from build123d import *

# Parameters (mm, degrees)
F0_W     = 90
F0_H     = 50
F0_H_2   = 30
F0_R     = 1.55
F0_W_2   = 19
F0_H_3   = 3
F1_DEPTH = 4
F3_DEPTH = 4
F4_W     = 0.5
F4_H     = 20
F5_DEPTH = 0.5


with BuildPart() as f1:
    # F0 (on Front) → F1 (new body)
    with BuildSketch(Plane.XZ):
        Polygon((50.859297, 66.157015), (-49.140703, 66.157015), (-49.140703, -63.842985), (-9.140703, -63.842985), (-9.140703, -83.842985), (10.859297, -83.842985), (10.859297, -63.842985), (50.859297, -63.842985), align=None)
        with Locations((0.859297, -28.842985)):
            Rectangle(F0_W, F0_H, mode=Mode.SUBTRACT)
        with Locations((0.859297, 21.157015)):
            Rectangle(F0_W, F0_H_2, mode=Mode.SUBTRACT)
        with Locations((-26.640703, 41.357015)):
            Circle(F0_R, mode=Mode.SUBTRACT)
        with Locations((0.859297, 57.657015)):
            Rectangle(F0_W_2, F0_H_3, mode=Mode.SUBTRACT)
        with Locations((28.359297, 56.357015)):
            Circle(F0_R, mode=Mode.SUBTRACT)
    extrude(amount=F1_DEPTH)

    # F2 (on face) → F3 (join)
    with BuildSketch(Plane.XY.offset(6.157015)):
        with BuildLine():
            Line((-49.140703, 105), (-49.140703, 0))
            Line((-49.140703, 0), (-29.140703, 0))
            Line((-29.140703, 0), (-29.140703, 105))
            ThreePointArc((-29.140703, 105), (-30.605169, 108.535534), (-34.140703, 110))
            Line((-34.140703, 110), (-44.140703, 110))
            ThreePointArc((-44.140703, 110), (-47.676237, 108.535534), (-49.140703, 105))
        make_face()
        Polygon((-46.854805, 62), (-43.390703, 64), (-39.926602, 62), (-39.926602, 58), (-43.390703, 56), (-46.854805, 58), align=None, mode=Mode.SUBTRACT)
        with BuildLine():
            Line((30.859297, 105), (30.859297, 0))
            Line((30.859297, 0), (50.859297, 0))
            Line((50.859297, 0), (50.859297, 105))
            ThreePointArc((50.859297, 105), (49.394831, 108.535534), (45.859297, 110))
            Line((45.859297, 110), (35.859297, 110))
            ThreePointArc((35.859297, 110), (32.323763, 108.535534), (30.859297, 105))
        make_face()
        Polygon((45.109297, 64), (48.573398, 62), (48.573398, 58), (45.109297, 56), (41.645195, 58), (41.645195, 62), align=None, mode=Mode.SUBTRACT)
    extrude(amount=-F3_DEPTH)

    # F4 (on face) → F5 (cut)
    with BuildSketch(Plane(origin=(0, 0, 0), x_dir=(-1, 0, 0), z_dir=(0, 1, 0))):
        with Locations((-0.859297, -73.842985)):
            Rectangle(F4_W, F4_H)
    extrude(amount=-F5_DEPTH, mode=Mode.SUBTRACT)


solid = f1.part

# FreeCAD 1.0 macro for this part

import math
import FreeCAD as App
import Part
import Sketcher

V = App.Vector
Q = App.Units.Quantity


def add_polygon(sketch, points):
    """Adds a closed chain of lines whose ends are joined by coincident constraints."""
    first, n = sketch.GeometryCount, len(points)
    for a, b in zip(points, points[1:] + points[:1]):
        sketch.addGeometry(Part.LineSegment(App.Vector(*a, 0), App.Vector(*b, 0)), False)
    for i in range(n):
        sketch.addConstraint(Sketcher.Constraint("Coincident", first + i, 2, first + (i + 1) % n, 1))

doc = App.newDocument("Part")
body = doc.addObject("PartDesign::Body", "Body")

sketch1 = body.newObject("Sketcher::SketchObject", "Sketch")
sketch1.AttachmentSupport = (doc.getObject("XZ_Plane"), [""])
sketch1.MapMode = "FlatFace"
add_polygon(sketch1, [(50.9, 66.2), (-49.1, 66.2), (-49.1, -63.8), (-9.1, -63.8), (-9.1, -83.8), (10.9, -83.8), (10.9, -63.8), (50.9, -63.8)])
add_polygon(sketch1, [(45.9, -53.8), (-44.1, -53.8), (-44.1, -3.8), (45.9, -3.8)])
sketch1.addGeometry(Part.Circle(V(-26.6, 41.4, 0), V(0, 0, 1), 1.6), False)
add_polygon(sketch1, [(45.9, 6.2), (-44.1, 6.2), (-44.1, 36.2), (45.9, 36.2)])
add_polygon(sketch1, [(10.4, 56.2), (-8.6, 56.2), (-8.6, 59.2), (10.4, 59.2)])
sketch1.addGeometry(Part.Circle(V(28.4, 56.4, 0), V(0, 0, 1), 1.6), False)
sketch1.addConstraint(Sketcher.Constraint("Horizontal", 0))
sketch1.addConstraint(Sketcher.Constraint("Vertical", 1))
sketch1.addConstraint(Sketcher.Constraint("Horizontal", 2))
sketch1.addConstraint(Sketcher.Constraint("Vertical", 3))
sketch1.addConstraint(Sketcher.Constraint("Horizontal", 4))
sketch1.addConstraint(Sketcher.Constraint("Vertical", 5))
sketch1.addConstraint(Sketcher.Constraint("Horizontal", 6))
sketch1.addConstraint(Sketcher.Constraint("Vertical", 7))
sketch1.addConstraint(Sketcher.Constraint("Horizontal", 8))
sketch1.addConstraint(Sketcher.Constraint("Vertical", 9))
sketch1.addConstraint(Sketcher.Constraint("Horizontal", 10))
sketch1.addConstraint(Sketcher.Constraint("Vertical", 11))
sketch1.addConstraint(Sketcher.Constraint("Horizontal", 13))
sketch1.addConstraint(Sketcher.Constraint("Vertical", 14))
sketch1.addConstraint(Sketcher.Constraint("Horizontal", 15))
sketch1.addConstraint(Sketcher.Constraint("Vertical", 16))
sketch1.addConstraint(Sketcher.Constraint("Horizontal", 17))
sketch1.addConstraint(Sketcher.Constraint("Vertical", 18))
sketch1.addConstraint(Sketcher.Constraint("Horizontal", 19))
sketch1.addConstraint(Sketcher.Constraint("Vertical", 20))
sketch1.addConstraint(Sketcher.Constraint("Equal", 12, 21))
sketch1.addConstraint(Sketcher.Constraint("Horizontal", 2, 2, 5, 2))
sketch1.addConstraint(Sketcher.Constraint("Vertical", 9, 2, 13, 2))
sketch1.addConstraint(Sketcher.Constraint("Vertical", 11, 2, 15, 2))
sketch1.addConstraint(Sketcher.Constraint("Equal", 2, 6))
sketch1.addConstraint(Sketcher.Constraint("Equal", 4, 3))
sketch1.addConstraint(Sketcher.Constraint("Diameter", 12, 3.1))
sketch1.addConstraint(Sketcher.Constraint("DistanceX", 0, 2, 0, 1, 100.0))
sketch1.addConstraint(Sketcher.Constraint("DistanceX", 2, 1, 2, 2, 40.0))
sketch1.addConstraint(Sketcher.Constraint("DistanceX", 8, 2, 8, 1, 90.0))
sketch1.addConstraint(Sketcher.Constraint("DistanceX", 17, 2, 17, 1, 19.0))
sketch1.addConstraint(Sketcher.Constraint("DistanceY", 1, 2, 1, 1, 130.0))
sketch1.addConstraint(Sketcher.Constraint("DistanceY", 9, 1, 9, 2, 50.0))
sketch1.addConstraint(Sketcher.Constraint("DistanceY", 14, 1, 14, 2, 30.0))
sketch1.addConstraint(Sketcher.Constraint("DistanceY", 18, 1, 18, 2, 3.0))
sketch1.addConstraint(Sketcher.Constraint("DistanceX", 12, 3, 21, 3, 55.0))
sketch1.addConstraint(Sketcher.Constraint("DistanceY", 12, 3, 21, 3, 15.0))
sketch1.addConstraint(Sketcher.Constraint("DistanceX", 1, 2, 8, 2, 5.0))
sketch1.addConstraint(Sketcher.Constraint("DistanceY", 1, 2, 8, 2, 10.0))
sketch1.addConstraint(Sketcher.Constraint("DistanceY", 9, 2, 13, 2, 10.0))
sketch1.addConstraint(Sketcher.Constraint("DistanceX", 12, 3, 17, 2, 18.0))
sketch1.addConstraint(Sketcher.Constraint("DistanceY", 14, 2, 17, 2, 20.0))
sketch1.addConstraint(Sketcher.Constraint("DistanceX", 0, 2, 12, 3, 22.5))
sketch1.addConstraint(Sketcher.Constraint("DistanceY", 12, 3, 0, 2, 24.8))
sketch1.addConstraint(Sketcher.Constraint("DistanceX", 12, 3, -1, 1, 26.640703))
sketch1.addConstraint(Sketcher.Constraint("DistanceY", -1, 1, 12, 3, 41.357015))
pad1 = body.newObject("PartDesign::Pad", "Pad")
pad1.Profile = sketch1
pad1.Length = 4

sketch2 = body.newObject("Sketcher::SketchObject", "Sketch001")
sketch2.AttachmentSupport = (doc.getObject("XY_Plane"), [""])
sketch2.MapMode = "FlatFace"
sketch2.AttachmentOffset = App.Placement(V(0, 0, 6.157015), App.Rotation())
sketch2.addGeometry(Part.LineSegment(V(-49.1, 105, 0), V(-49.1, 0, 0)), False)
sketch2.addGeometry(Part.LineSegment(V(-49.1, 0, 0), V(-29.1, 0, 0)), False)
sketch2.addGeometry(Part.LineSegment(V(-29.1, 0, 0), V(-29.1, 105, 0)), False)
sketch2.addGeometry(Part.ArcOfCircle(Part.Circle(V(-34.1, 105, 0), V(0, 0, 1), 5), math.radians(0), math.radians(90)), False)
sketch2.addGeometry(Part.LineSegment(V(-34.1, 110, 0), V(-44.1, 110, 0)), False)
sketch2.addGeometry(Part.ArcOfCircle(Part.Circle(V(-44.1, 105, 0), V(0, 0, 1), 5), math.radians(90), math.radians(180)), False)
add_polygon(sketch2, [(-46.9, 58), (-46.9, 62), (-43.4, 64), (-39.9, 62), (-39.9, 58), (-43.4, 56)])
sketch2.addGeometry(Part.LineSegment(V(30.9, 105, 0), V(30.9, 0, 0)), False)
sketch2.addGeometry(Part.LineSegment(V(30.9, 0, 0), V(50.9, 0, 0)), False)
sketch2.addGeometry(Part.LineSegment(V(50.9, 0, 0), V(50.9, 105, 0)), False)
sketch2.addGeometry(Part.ArcOfCircle(Part.Circle(V(45.9, 105, 0), V(0, 0, 1), 5), math.radians(0), math.radians(90)), False)
sketch2.addGeometry(Part.LineSegment(V(45.9, 110, 0), V(35.9, 110, 0)), False)
sketch2.addGeometry(Part.ArcOfCircle(Part.Circle(V(35.9, 105, 0), V(0, 0, 1), 5), math.radians(90), math.radians(180)), False)
add_polygon(sketch2, [(41.6, 62), (45.1, 64), (48.6, 62), (48.6, 58), (45.1, 56), (41.6, 58)])
sketch2.addConstraint(Sketcher.Constraint("Coincident", 0, 2, 1, 1))
sketch2.addConstraint(Sketcher.Constraint("Coincident", 1, 2, 2, 1))
sketch2.addConstraint(Sketcher.Constraint("Tangent", 2, 2, 3, 1))
sketch2.addConstraint(Sketcher.Constraint("Tangent", 3, 2, 4, 1))
sketch2.addConstraint(Sketcher.Constraint("Tangent", 4, 2, 5, 1))
sketch2.addConstraint(Sketcher.Constraint("Tangent", 5, 2, 0, 1))
sketch2.addConstraint(Sketcher.Constraint("Coincident", 12, 2, 13, 1))
sketch2.addConstraint(Sketcher.Constraint("Coincident", 13, 2, 14, 1))
sketch2.addConstraint(Sketcher.Constraint("Tangent", 14, 2, 15, 1))
sketch2.addConstraint(Sketcher.Constraint("Tangent", 15, 2, 16, 1))
sketch2.addConstraint(Sketcher.Constraint("Tangent", 16, 2, 17, 1))
sketch2.addConstraint(Sketcher.Constraint("Tangent", 17, 2, 12, 1))
sketch2.addConstraint(Sketcher.Constraint("Vertical", 0))
sketch2.addConstraint(Sketcher.Constraint("Horizontal", 1))
sketch2.addConstraint(Sketcher.Constraint("Vertical", 2))
sketch2.addConstraint(Sketcher.Constraint("Horizontal", 4))
sketch2.addConstraint(Sketcher.Constraint("Vertical", 6))
sketch2.addConstraint(Sketcher.Constraint("Vertical", 9))
sketch2.addConstraint(Sketcher.Constraint("Vertical", 12))
sketch2.addConstraint(Sketcher.Constraint("Horizontal", 13))
sketch2.addConstraint(Sketcher.Constraint("Vertical", 14))
sketch2.addConstraint(Sketcher.Constraint("Horizontal", 16))
sketch2.addConstraint(Sketcher.Constraint("Vertical", 20))
sketch2.addConstraint(Sketcher.Constraint("Vertical", 23))
sketch2.addConstraint(Sketcher.Constraint("Equal", 3, 5))
sketch2.addConstraint(Sketcher.Constraint("Equal", 5, 15))
sketch2.addConstraint(Sketcher.Constraint("Equal", 15, 17))
sketch2.addConstraint(Sketcher.Constraint("PointOnObject", 0, 2, -1))
sketch2.addConstraint(Sketcher.Constraint("PointOnObject", 12, 2, -1))
sketch2.addConstraint(Sketcher.Constraint("Parallel", 7, 10))
sketch2.addConstraint(Sketcher.Constraint("Parallel", 8, 11))
sketch2.addConstraint(Sketcher.Constraint("Parallel", 10, 18))
sketch2.addConstraint(Sketcher.Constraint("Parallel", 11, 19))
sketch2.addConstraint(Sketcher.Constraint("Parallel", 18, 21))
sketch2.addConstraint(Sketcher.Constraint("Parallel", 19, 22))
sketch2.addConstraint(Sketcher.Constraint("Horizontal", 5, 3, 15, 3))
sketch2.addConstraint(Sketcher.Constraint("Horizontal", 6, 2, 8, 2))
sketch2.addConstraint(Sketcher.Constraint("Horizontal", 9, 2, 11, 2))
sketch2.addConstraint(Sketcher.Constraint("Horizontal", 7, 2, 18, 2))
sketch2.addConstraint(Sketcher.Constraint("Horizontal", 8, 2, 19, 2))
sketch2.addConstraint(Sketcher.Constraint("Horizontal", 11, 2, 20, 2))
sketch2.addConstraint(Sketcher.Constraint("Horizontal", 10, 2, 21, 2))
sketch2.addConstraint(Sketcher.Constraint("Horizontal", 20, 2, 22, 2))
sketch2.addConstraint(Sketcher.Constraint("Vertical", 7, 2, 10, 2))
sketch2.addConstraint(Sketcher.Constraint("Equal", 1, 13))
sketch2.addConstraint(Sketcher.Constraint("Radius", 3, 5.0))
sketch2.addConstraint(Sketcher.Constraint("DistanceX", 1, 1, 1, 2, 20.0))
sketch2.addConstraint(Sketcher.Constraint("DistanceY", 0, 2, 0, 1, 105.0))
sketch2.addConstraint(Sketcher.Constraint("DistanceY", 6, 1, 6, 2, 4.0))
sketch2.addConstraint(Sketcher.Constraint("Angle", 7, Q("29.999997 deg")))
sketch2.addConstraint(Sketcher.Constraint("Distance", 7, 4.0))
sketch2.addConstraint(Sketcher.Constraint("DistanceY", -1, 1, 6, 2, 62.0))
sketch2.addConstraint(Sketcher.Constraint("DistanceX", 3, 3, 15, 3, 80.0))
sketch2.addConstraint(Sketcher.Constraint("DistanceX", 5, 3, 7, 2, 0.75))
sketch2.addConstraint(Sketcher.Constraint("DistanceX", 18, 2, 15, 3, 0.75))
sketch2.addConstraint(Sketcher.Constraint("DistanceX", 3, 3, -1, 1, 34.140703))
pad2 = body.newObject("PartDesign::Pad", "Pad001")
pad2.Profile = sketch2
pad2.Length = 4
pad2.Reversed = True

sketch3 = body.newObject("Sketcher::SketchObject", "Sketch002")
sketch3.AttachmentSupport = (doc.getObject("XZ_Plane"), [""])
sketch3.MapMode = "FlatFace"
add_polygon(sketch3, [(1.1, -63.8), (1.1, -83.8), (0.6, -83.8), (0.6, -63.8)])
sketch3.addConstraint(Sketcher.Constraint("Vertical", 0))
sketch3.addConstraint(Sketcher.Constraint("Horizontal", 1))
sketch3.addConstraint(Sketcher.Constraint("Vertical", 2))
sketch3.addConstraint(Sketcher.Constraint("Horizontal", 3))
sketch3.addConstraint(Sketcher.Constraint("DistanceY", 0, 2, 0, 1, 20.0))
sketch3.addConstraint(Sketcher.Constraint("DistanceX", 1, 2, 1, 1, 0.5))
sketch3.addConstraint(Sketcher.Constraint("DistanceX", -1, 1, 0, 2, 1.109297))
sketch3.addConstraint(Sketcher.Constraint("DistanceY", 0, 2, -1, 1, 83.842985))
pocket1 = body.newObject("PartDesign::Pocket", "Pocket")
pocket1.Profile = sketch3
pocket1.Length = 0.5
pocket1.Reversed = True

doc.recompute()
